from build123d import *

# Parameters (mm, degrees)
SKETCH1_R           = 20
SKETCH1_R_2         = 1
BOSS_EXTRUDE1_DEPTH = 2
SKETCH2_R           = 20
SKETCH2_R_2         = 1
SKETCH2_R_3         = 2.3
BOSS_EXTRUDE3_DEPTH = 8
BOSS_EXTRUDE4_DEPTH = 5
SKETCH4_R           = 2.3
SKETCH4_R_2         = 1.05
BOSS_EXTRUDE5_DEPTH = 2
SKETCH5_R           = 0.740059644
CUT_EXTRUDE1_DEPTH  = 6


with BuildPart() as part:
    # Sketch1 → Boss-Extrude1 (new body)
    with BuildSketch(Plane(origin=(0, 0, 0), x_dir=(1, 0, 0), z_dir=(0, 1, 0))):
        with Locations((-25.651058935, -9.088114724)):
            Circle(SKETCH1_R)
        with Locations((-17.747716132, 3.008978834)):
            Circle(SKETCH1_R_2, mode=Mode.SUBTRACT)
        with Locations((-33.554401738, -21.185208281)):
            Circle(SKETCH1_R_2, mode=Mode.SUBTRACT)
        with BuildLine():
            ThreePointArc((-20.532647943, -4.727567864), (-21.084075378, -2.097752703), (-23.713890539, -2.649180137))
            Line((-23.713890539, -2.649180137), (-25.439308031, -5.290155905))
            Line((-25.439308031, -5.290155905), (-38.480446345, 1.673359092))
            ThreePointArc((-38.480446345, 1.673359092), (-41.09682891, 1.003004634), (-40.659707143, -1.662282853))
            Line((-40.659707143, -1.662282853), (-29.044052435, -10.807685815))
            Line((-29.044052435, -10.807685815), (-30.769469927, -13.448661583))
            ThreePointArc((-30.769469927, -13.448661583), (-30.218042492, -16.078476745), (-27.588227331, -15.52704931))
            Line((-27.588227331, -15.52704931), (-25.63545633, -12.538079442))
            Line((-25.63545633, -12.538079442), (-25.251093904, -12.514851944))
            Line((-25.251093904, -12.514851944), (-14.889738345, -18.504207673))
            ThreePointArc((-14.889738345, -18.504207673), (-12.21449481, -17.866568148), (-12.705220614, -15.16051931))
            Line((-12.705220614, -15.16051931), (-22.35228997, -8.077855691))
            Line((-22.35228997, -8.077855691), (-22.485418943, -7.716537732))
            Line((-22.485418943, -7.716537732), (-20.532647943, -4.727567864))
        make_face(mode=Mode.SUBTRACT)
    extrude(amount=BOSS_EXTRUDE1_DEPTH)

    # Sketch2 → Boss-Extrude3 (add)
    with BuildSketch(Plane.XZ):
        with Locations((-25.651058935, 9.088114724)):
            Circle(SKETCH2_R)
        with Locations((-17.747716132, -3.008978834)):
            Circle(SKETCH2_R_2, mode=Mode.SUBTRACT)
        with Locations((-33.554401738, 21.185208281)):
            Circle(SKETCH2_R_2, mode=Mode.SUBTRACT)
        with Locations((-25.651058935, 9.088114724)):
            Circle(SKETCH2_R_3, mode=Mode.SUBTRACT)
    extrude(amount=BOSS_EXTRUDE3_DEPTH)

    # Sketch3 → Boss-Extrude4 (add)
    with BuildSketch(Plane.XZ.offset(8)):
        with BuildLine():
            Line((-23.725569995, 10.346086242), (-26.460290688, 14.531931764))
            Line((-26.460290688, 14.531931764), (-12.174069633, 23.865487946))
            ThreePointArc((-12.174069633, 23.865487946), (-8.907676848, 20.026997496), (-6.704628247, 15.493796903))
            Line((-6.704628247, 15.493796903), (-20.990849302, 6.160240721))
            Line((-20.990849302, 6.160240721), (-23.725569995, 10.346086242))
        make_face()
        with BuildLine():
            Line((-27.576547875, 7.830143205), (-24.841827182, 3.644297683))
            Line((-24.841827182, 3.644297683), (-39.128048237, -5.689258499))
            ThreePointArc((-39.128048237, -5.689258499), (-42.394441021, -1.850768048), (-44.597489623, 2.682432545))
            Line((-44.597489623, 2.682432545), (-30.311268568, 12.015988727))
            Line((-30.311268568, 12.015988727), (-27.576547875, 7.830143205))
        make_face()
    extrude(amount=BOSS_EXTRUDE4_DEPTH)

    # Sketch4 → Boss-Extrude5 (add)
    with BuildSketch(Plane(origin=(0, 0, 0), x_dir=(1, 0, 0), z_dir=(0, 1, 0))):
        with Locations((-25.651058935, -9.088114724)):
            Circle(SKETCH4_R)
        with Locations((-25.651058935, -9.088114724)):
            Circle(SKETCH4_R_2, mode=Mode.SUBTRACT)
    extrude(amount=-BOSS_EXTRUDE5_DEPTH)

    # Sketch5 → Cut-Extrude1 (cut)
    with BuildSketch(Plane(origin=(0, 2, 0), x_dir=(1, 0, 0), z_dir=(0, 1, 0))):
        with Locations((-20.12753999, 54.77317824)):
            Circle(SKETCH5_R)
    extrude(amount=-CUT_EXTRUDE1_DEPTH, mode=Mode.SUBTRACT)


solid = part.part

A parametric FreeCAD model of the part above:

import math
import FreeCAD as App
import Part
import Sketcher

doc = App.newDocument("Part")
params = doc.addObject("Spreadsheet::Sheet", "Params")
for row, (alias, value) in enumerate([
    ("sketch1_diameter", "40 mm"),
    ("sketch1_diameter2", "2 mm"),
    ("sketch1_diameter3", "2 mm"),
    ("sketch1_radius", "2 mm"),
    ("sketch1_radius2", "2 mm"),
    ("pad1_length", "2 mm"),
    ("sketch2_diameter", "40 mm"),
    ("sketch2_diameter2", "2 mm"),
    ("sketch2_diameter3", "4.6 mm"),
    ("pad2_length", "8 mm"),
    ("sketch3_radius", "20 mm"),
    ("sketch3_length", "5 mm"),
    ("sketch3_length2", "10 mm"),
    ("pad3_length", "5 mm"),
    ("sketch4_diameter", "4.6 mm"),
    ("sketch4_diameter2", "2.1 mm"),
    ("pad4_length", "2 mm"),
    ("pocket1_length", "6 mm"),
], start=1):
    params.set(f"A{row}", alias)
    params.set(f"B{row}", "=" + value)
    params.setAlias(f"B{row}", alias)

body = doc.addObject("PartDesign::Body", "Body")

# Sketch on XZ plane
sketch1 = doc.addObject("Sketcher::SketchObject", "Sketch")
body.addObject(sketch1)
sketch1.AttachmentSupport = (doc.XZ_Plane, [""])
sketch1.MapMode = "FlatFace"
sketch1.addGeometry([
    Part.Circle(App.Vector(-25.651059, 9.088115, 0), App.Vector(0, 0, 1), 20),  # 0
    Part.Circle(App.Vector(-33.554402, 21.185208, 0), App.Vector(0, 0, 1), 1),  # 1
    Part.ArcOfCircle(Part.Circle(App.Vector(-22.123269, 3.688374, 0), App.Vector(0, 0, 1), 1.9), math.radians(-146.84238), math.radians(33.15762)),  # 2
    Part.LineSegment(App.Vector(-20.532648, 4.727568, 0), App.Vector(-22.485419, 7.716538, 0)),  # 3
    Part.LineSegment(App.Vector(-22.485419, 7.716538, 0), App.Vector(-22.35229, 8.077856, 0)),  # 4
    Part.LineSegment(App.Vector(-22.35229, 8.077856, 0), App.Vector(-12.705221, 15.160519, 0)),  # 5
    Part.ArcOfCircle(Part.Circle(App.Vector(-13.888833, 16.77268, 0), App.Vector(0, 0, 1), 2), math.radians(-53.714713), math.radians(120.029952)),  # 6
    Part.LineSegment(App.Vector(-14.889738, 18.504208, 0), App.Vector(-25.251094, 12.514852, 0)),  # 7
    Part.LineSegment(App.Vector(-25.251094, 12.514852, 0), App.Vector(-25.635456, 12.538079, 0)),  # 8
    Part.LineSegment(App.Vector(-25.635456, 12.538079, 0), App.Vector(-27.588227, 15.527049, 0)),  # 9
    Part.ArcOfCircle(Part.Circle(App.Vector(-29.178849, 14.487855, 0), App.Vector(0, 0, 1), 1.9), math.radians(33.15762), math.radians(213.15762)),  # 10
    Part.LineSegment(App.Vector(-30.76947, 13.448662, 0), App.Vector(-29.044052, 10.807686, 0)),  # 11
    Part.LineSegment(App.Vector(-29.044052, 10.807686, 0), App.Vector(-40.659707, 1.662283, 0)),  # 12
    Part.ArcOfCircle(Part.Circle(App.Vector(-39.422491, 0.090884, 0), App.Vector(0, 0, 1), 2), math.radians(128.21457), math.radians(298.100669)),  # 13
    Part.LineSegment(App.Vector(-38.480446, -1.673359, 0), App.Vector(-25.439308, 5.290156, 0)),  # 14
    Part.LineSegment(App.Vector(-25.439308, 5.290156, 0), App.Vector(-23.713891, 2.64918, 0)),  # 15
    Part.Circle(App.Vector(-17.747716, -3.008979, 0), App.Vector(0, 0, 1), 1),  # 16
], False)
sketch1.addConstraint([
    Sketcher.Constraint("Coincident", 2, 2, 3, 1),
    Sketcher.Constraint("Coincident", 3, 2, 4, 1),
    Sketcher.Constraint("Coincident", 4, 2, 5, 1),
    Sketcher.Constraint("Coincident", 5, 2, 6, 1),
    Sketcher.Constraint("Coincident", 6, 2, 7, 1),
    Sketcher.Constraint("Coincident", 7, 2, 8, 1),
    Sketcher.Constraint("Coincident", 8, 2, 9, 1),
    Sketcher.Constraint("Coincident", 9, 2, 10, 1),
    Sketcher.Constraint("Coincident", 10, 2, 11, 1),
    Sketcher.Constraint("Coincident", 11, 2, 12, 1),
    Sketcher.Constraint("Coincident", 12, 2, 13, 1),
    Sketcher.Constraint("Coincident", 13, 2, 14, 1),
    Sketcher.Constraint("Coincident", 14, 2, 15, 1),
    Sketcher.Constraint("Coincident", 15, 2, 2, 1),
    Sketcher.Constraint("Diameter", 0, 40.0),
    Sketcher.Constraint("Diameter", 1, 2.0),
    Sketcher.Constraint("Diameter", 16, 2.0),
    Sketcher.Constraint("Radius", 6, 2.0),
    Sketcher.Constraint("Radius", 13, 2.0),
    Sketcher.Constraint("Radius", 2, 1.9),
    Sketcher.Constraint("Radius", 10, 1.9),
    Sketcher.Constraint("DistanceY", 4, 2, 10, 3, 6.41),
    Sketcher.Constraint("DistanceX", 1, 3, -1, 1, 33.554402),
    Sketcher.Constraint("DistanceX", 10, 3, 2, 2, 8.646201),
    Sketcher.Constraint("DistanceX", 3, 2, 5, 2, 9.780198),
    Sketcher.Constraint("DistanceY", 13, 3, 12, 2, 1.571399),
    Sketcher.Constraint("DistanceY", 14, 2, 4, 2, 2.7877),
    Sketcher.Constraint("DistanceX", 15, 2, 4, 2, 1.361601),
    Sketcher.Constraint("Distance", 3, 3.57033),
    Sketcher.Constraint("Distance", 9, 3.57033),
    Sketcher.Constraint("Distance", 11, 3.15465),
    Sketcher.Constraint("Distance", 15, 3.15465),
    Sketcher.Constraint("DistanceX", 0, 3, -1, 1, 25.651059),
    Sketcher.Constraint("DistanceY", -1, 1, 1, 3, 21.185208),
    Sketcher.Constraint("DistanceX", 2, 3, -1, 1, 22.123269),
    Sketcher.Constraint("DistanceY", -1, 1, 6, 3, 16.77268),
    Sketcher.Constraint("DistanceX", 10, 3, -1, 1, 29.178849),
    Sketcher.Constraint("DistanceX", 13, 3, -1, 1, 39.422491),
    Sketcher.Constraint("DistanceY", 16, 3, -1, 1, 3.008979),
    Sketcher.Constraint("DistanceX", 3, 2, -1, 1, 22.485419),
    Sketcher.Constraint("DistanceX", 4, 2, -1, 1, 22.35229),
    Sketcher.Constraint("DistanceY", -1, 1, 5, 2, 15.160519),
    Sketcher.Constraint("DistanceX", 6, 2, -1, 1, 14.889738),
    Sketcher.Constraint("DistanceY", -1, 1, 7, 2, 12.514852),
    Sketcher.Constraint("DistanceY", -1, 1, 8, 2, 12.538079),
    Sketcher.Constraint("DistanceY", -1, 1, 9, 2, 15.527049),
    Sketcher.Constraint("DistanceX", 10, 2, -1, 1, 30.76947),
    Sketcher.Constraint("DistanceY", -1, 1, 10, 2, 13.448662),
    Sketcher.Constraint("DistanceY", 13, 2, -1, 1, 1.673359),
    Sketcher.Constraint("DistanceX", 14, 2, -1, 1, 25.439308),
    Sketcher.Constraint("DistanceY", 2, 3, 0, 3, 5.399741),
    Sketcher.Constraint("DistanceY", 13, 3, 0, 3, 8.997231),
    Sketcher.Constraint("DistanceX", 2, 2, 16, 3, 2.784932),
    Sketcher.Constraint("DistanceY", 11, 2, 10, 3, 3.68017),
    Sketcher.Constraint("DistanceX", 11, 2, 7, 2, 3.792959),
])
sketch1.setExpression("Constraints[14]", "Params.sketch1_diameter")
sketch1.setExpression("Constraints[15]", "Params.sketch1_diameter2")
sketch1.setExpression("Constraints[16]", "Params.sketch1_diameter3")
sketch1.setExpression("Constraints[17]", "Params.sketch1_radius")
sketch1.setExpression("Constraints[18]", "Params.sketch1_radius2")
pad1 = doc.addObject("PartDesign::Pad", "Pad")
body.addObject(pad1)
pad1.Profile = sketch1
pad1.setExpression("Length", "Params.pad1_length")
pad1.Reversed = True

# Sketch on XZ plane
sketch2 = doc.addObject("Sketcher::SketchObject", "Sketch001")
body.addObject(sketch2)
sketch2.AttachmentSupport = (doc.XZ_Plane, [""])
sketch2.MapMode = "FlatFace"
sketch2.addGeometry([
    Part.Circle(App.Vector(-25.7, 9.1, 0), App.Vector(0, 0, 1), 20),
    Part.Circle(App.Vector(-17.7, -3, 0), App.Vector(0, 0, 1), 1),
    Part.Circle(App.Vector(-33.6, 21.2, 0), App.Vector(0, 0, 1), 1),
    Part.Circle(App.Vector(-25.7, 9.1, 0), App.Vector(0, 0, 1), 2.3),
], False)
sketch2.addConstraint([
    Sketcher.Constraint("Coincident", 3, 3, 0, 3),
    Sketcher.Constraint("Equal", 1, 2),
    Sketcher.Constraint("Diameter", 0, 40.0),
    Sketcher.Constraint("Diameter", 1, 2.0),
    Sketcher.Constraint("Diameter", 3, 4.6),
    Sketcher.Constraint("DistanceX", 2, 3, -1, 1, 33.554402),
    Sketcher.Constraint("DistanceX", 0, 3, -1, 1, 25.651059),
    Sketcher.Constraint("DistanceY", 1, 3, -1, 1, 3.008979),
    Sketcher.Constraint("DistanceY", -1, 1, 2, 3, 21.185208),
    Sketcher.Constraint("DistanceY", -1, 1, 0, 3, 9.088115),
    Sketcher.Constraint("DistanceX", 1, 3, -1, 1, 17.747716),
])
sketch2.setExpression("Constraints[2]", "Params.sketch2_diameter")
sketch2.setExpression("Constraints[3]", "Params.sketch2_diameter2")
sketch2.setExpression("Constraints[4]", "Params.sketch2_diameter3")
pad2 = doc.addObject("PartDesign::Pad", "Pad001")
body.addObject(pad2)
pad2.Profile = sketch2
pad2.setExpression("Length", "Params.pad2_length")

# Sketch on XZ plane
sketch3 = doc.addObject("Sketcher::SketchObject", "Sketch002")
body.addObject(sketch3)
sketch3.AttachmentSupport = (doc.XZ_Plane, [""])
sketch3.MapMode = "FlatFace"
sketch3.AttachmentOffset = App.Placement(App.Vector(0, 0, 8), App.Rotation())
sketch3.addGeometry([
    Part.LineSegment(App.Vector(-26.5, 14.5, 0), App.Vector(-23.7, 10.3, 0)),  # 0
    Part.LineSegment(App.Vector(-23.7, 10.3, 0), App.Vector(-21, 6.2, 0)),  # 1
    Part.LineSegment(App.Vector(-21, 6.2, 0), App.Vector(-6.7, 15.5, 0)),  # 2
    Part.ArcOfCircle(Part.Circle(App.Vector(-25.7, 9.1, 0), App.Vector(0, 0, 1), 20), math.radians(19), math.radians(48)),  # 3
    Part.LineSegment(App.Vector(-12.2, 23.9, 0), App.Vector(-26.5, 14.5, 0)),  # 4
    Part.LineSegment(App.Vector(-39.1, -5.7, 0), App.Vector(-24.8, 3.6, 0)),  # 5
    Part.LineSegment(App.Vector(-24.8, 3.6, 0), App.Vector(-30.3, 12, 0)),  # 6
    Part.LineSegment(App.Vector(-30.3, 12, 0), App.Vector(-44.6, 2.7, 0)),  # 7
    Part.ArcOfCircle(Part.Circle(App.Vector(-25.7, 9.1, 0), App.Vector(0, 0, 1), 20), math.radians(-161), math.radians(-132)),  # 8
], False)
sketch3.addConstraint([
    Sketcher.Constraint("Coincident", 0, 2, 1, 1),
    Sketcher.Constraint("Coincident", 1, 2, 2, 1),
    Sketcher.Constraint("Coincident", 2, 2, 3, 1),
    Sketcher.Constraint("Coincident", 3, 2, 4, 1),
    Sketcher.Constraint("Coincident", 4, 2, 0, 1),
    Sketcher.Constraint("Coincident", 5, 2, 6, 1),
    Sketcher.Constraint("Coincident", 6, 2, 7, 1),
    Sketcher.Constraint("Coincident", 7, 2, 8, 1),
    Sketcher.Constraint("Coincident", 8, 2, 5, 1),
    Sketcher.Constraint("Coincident", 8, 3, 3, 3),
    Sketcher.Constraint("Equal", 3, 8),
    Sketcher.Constraint("Parallel", 0, 1),
    Sketcher.Constraint("Perpendicular", 1, 2),
    Sketcher.Constraint("Parallel", 2, 4),
    Sketcher.Constraint("Parallel", 4, 5),
    Sketcher.Constraint("Perpendicular", 5, 6),
    Sketcher.Constraint("Perpendicular", 6, 7),
    Sketcher.Constraint("Equal", 0, 1),
    Sketcher.Constraint("Equal", 2, 4),
    Sketcher.Constraint("Equal", 4, 5),
    Sketcher.Constraint("Equal", 5, 7),
    Sketcher.Constraint("Radius", 3, 20.0),
    Sketcher.Constraint("Distance", 0, 5.0),
    Sketcher.Constraint("Distance", 6, 10.0),
    Sketcher.Constraint("DistanceX", 0, 2, 3, 2, 11.5515),
    Sketcher.Constraint("DistanceY", 0, 2, 3, 2, 13.519402),
    Sketcher.Constraint("DistanceX", 3, 3, -1, 1, 25.651059),
    Sketcher.Constraint("DistanceY", -1, 1, 1, 2, 6.160241),
])
sketch3.setExpression("Constraints[21]", "Params.sketch3_radius")
sketch3.setExpression("Constraints[22]", "Params.sketch3_length")
sketch3.setExpression("Constraints[23]", "Params.sketch3_length2")
pad3 = doc.addObject("PartDesign::Pad", "Pad002")
body.addObject(pad3)
pad3.Profile = sketch3
pad3.setExpression("Length", "Params.pad3_length")

# Sketch on XZ plane
sketch4 = doc.addObject("Sketcher::SketchObject", "Sketch003")
body.addObject(sketch4)
sketch4.AttachmentSupport = (doc.XZ_Plane, [""])
sketch4.MapMode = "FlatFace"
sketch4.addGeometry([
    Part.Circle(App.Vector(-25.7, 9.1, 0), App.Vector(0, 0, 1), 2.3),
    Part.Circle(App.Vector(-25.7, 9.1, 0), App.Vector(0, 0, 1), 1.1),
], False)
sketch4.addConstraint([
    Sketcher.Constraint("Coincident", 1, 3, 0, 3),
    Sketcher.Constraint("Diameter", 0, 4.6),
    Sketcher.Constraint("Diameter", 1, 2.1),
    Sketcher.Constraint("DistanceX", 0, 3, -1, 1, 25.651059),
    Sketcher.Constraint("DistanceY", -1, 1, 0, 3, 9.088115),
])
sketch4.setExpression("Constraints[1]", "Params.sketch4_diameter")
sketch4.setExpression("Constraints[2]", "Params.sketch4_diameter2")
pad4 = doc.addObject("PartDesign::Pad", "Pad003")
body.addObject(pad4)
pad4.Profile = sketch4
pad4.setExpression("Length", "Params.pad4_length")

# Sketch on XZ plane
sketch5 = doc.addObject("Sketcher::SketchObject", "Sketch004")
body.addObject(sketch5)
sketch5.AttachmentSupport = (doc.XZ_Plane, [""])
sketch5.MapMode = "FlatFace"
sketch5.AttachmentOffset = App.Placement(App.Vector(0, 0, -2), App.Rotation())
sketch5.addGeometry(Part.Circle(App.Vector(-20.1, -54.8, 0), App.Vector(0, 0, 1), 0.7), False)
sketch5.addConstraint([
    Sketcher.Constraint("Diameter", 0, 1.480119),
    Sketcher.Constraint("DistanceX", 0, 3, -1, 1, 20.12754),
    Sketcher.Constraint("DistanceY", 0, 3, -1, 1, 54.773178),
])
pocket1 = doc.addObject("PartDesign::Pocket", "Pocket")
body.addObject(pocket1)
pocket1.Profile = sketch5
pocket1.setExpression("Length", "Params.pocket1_length")
pocket1.Reversed = True

doc.recompute()
